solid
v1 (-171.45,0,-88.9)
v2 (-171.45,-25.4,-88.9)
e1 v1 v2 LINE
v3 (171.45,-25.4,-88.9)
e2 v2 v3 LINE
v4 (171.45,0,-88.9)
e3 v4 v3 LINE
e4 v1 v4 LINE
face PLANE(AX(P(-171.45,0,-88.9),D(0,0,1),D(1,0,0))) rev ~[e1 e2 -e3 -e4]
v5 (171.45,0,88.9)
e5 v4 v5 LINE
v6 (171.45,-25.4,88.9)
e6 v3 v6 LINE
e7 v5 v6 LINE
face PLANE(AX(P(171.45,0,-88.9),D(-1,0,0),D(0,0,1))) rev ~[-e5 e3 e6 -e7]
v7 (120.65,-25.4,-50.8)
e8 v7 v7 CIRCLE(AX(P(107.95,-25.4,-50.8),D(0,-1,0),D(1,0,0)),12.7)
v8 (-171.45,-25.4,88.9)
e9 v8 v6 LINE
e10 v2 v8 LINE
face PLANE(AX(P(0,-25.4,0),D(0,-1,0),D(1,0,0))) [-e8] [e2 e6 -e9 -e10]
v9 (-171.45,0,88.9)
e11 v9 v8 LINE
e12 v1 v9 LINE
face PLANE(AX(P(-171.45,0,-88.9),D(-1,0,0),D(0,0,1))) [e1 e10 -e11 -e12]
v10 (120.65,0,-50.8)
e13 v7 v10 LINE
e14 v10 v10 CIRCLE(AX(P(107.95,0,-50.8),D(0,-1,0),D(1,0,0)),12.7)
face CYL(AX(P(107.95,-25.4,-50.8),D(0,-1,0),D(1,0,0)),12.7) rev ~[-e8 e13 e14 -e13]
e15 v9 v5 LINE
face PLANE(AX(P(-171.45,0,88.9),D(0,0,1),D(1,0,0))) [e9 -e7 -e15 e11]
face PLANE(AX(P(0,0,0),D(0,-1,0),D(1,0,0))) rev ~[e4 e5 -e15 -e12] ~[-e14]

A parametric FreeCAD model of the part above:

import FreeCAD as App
import Part
import Sketcher
from FreeCAD import Vector
Q = App.Units.Quantity


def add_polygon(sketch, points):
    """Adds a closed chain of lines whose ends are joined by coincident constraints."""
    first, n = sketch.GeometryCount, len(points)
    for a, b in zip(points, points[1:] + points[:1]):
        sketch.addGeometry(Part.LineSegment(App.Vector(*a, 0), App.Vector(*b, 0)), False)
    for i in range(n):
        sketch.addConstraint(Sketcher.Constraint("Coincident", first + i, 2, first + (i + 1) % n, 1))

doc = App.newDocument("Part")
body = doc.addObject("PartDesign::Body", "Body")

# Sketch on XZ plane
sketch1 = body.newObject("Sketcher::SketchObject", "Sketch")
sketch1.AttachmentSupport = (doc.getObject("XZ_Plane"), [""])
sketch1.MapMode = "FlatFace"
add_polygon(sketch1, [(-171.45, 88.9), (-171.45, -88.9), (171.45, -88.9), (171.45, 88.9)])  # lines 0-3
sketch1.addConstraint([
    Sketcher.Constraint("Vertical", 0),
    Sketcher.Constraint("Horizontal", 1),
    Sketcher.Constraint("Vertical", 2),
    Sketcher.Constraint("Horizontal", 3),
    Sketcher.Constraint("Symmetric", 0, 2, 2, 2, -1, 1),
    Sketcher.Constraint("DistanceY", 0, 2, 0, 1, Q("7 in")),
    Sketcher.Constraint("DistanceX", 1, 1, 1, 2, Q("13.5 in")),
])
pad1 = body.newObject("PartDesign::Pad", "Pad")
pad1.Profile = sketch1
pad1.Length = Q("1 in")

# Sketch on XZ plane
sketch2 = body.newObject("Sketcher::SketchObject", "Sketch001")
sketch2.AttachmentSupport = (doc.getObject("XZ_Plane"), [""])
sketch2.MapMode = "FlatFace"
sketch2.AttachmentOffset = App.Placement(Vector(0, 0, 1 * 25.4), App.Rotation())
sketch2.addGeometry(Part.Circle(Vector(107.95, -50.8, 0), Vector(0, 0, 1), 12.7), False)
sketch2.addConstraint([
    Sketcher.Constraint("Diameter", 0, Q("1 in")),
    Sketcher.Constraint("DistanceY", 0, 3, -1, 1, Q("2 in")),
    Sketcher.Constraint("DistanceX", -1, 1, 0, 3, Q("4.25 in")),
])
pocket1 = body.newObject("PartDesign::Pocket", "Pocket")
pocket1.Profile = sketch2
pocket1.Length = Q("1 in")

doc.recompute()
